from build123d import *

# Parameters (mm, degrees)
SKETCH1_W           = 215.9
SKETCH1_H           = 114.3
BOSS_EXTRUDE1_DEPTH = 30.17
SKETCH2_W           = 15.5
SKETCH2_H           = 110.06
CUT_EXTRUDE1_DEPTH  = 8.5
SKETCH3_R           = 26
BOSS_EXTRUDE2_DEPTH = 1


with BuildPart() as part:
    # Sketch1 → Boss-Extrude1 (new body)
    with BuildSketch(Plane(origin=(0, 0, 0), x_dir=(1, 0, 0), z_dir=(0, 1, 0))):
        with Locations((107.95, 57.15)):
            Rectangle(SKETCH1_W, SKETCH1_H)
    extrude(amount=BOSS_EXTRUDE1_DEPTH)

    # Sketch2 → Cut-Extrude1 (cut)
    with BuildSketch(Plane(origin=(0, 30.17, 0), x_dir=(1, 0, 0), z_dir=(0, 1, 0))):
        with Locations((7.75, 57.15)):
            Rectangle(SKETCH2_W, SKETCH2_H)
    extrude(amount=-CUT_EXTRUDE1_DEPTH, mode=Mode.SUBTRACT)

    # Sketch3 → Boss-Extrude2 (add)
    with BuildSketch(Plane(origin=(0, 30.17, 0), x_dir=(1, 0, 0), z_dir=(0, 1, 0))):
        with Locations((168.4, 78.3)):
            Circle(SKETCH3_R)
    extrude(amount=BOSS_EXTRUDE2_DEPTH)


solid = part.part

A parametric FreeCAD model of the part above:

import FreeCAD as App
import Part
import Sketcher


def add_polygon(sketch, points):
    """Adds a closed chain of lines whose ends are joined by coincident constraints."""
    first, n = sketch.GeometryCount, len(points)
    for a, b in zip(points, points[1:] + points[:1]):
        sketch.addGeometry(Part.LineSegment(App.Vector(*a, 0), App.Vector(*b, 0)), False)
    for i in range(n):
        sketch.addConstraint(Sketcher.Constraint("Coincident", first + i, 2, first + (i + 1) % n, 1))

doc = App.newDocument("Part")
params = doc.addObject("Spreadsheet::Sheet", "Params")
for row, (alias, value) in enumerate([
    ("sketch1_width", "215.9 mm"),
    ("sketch1_height", "114.3 mm"),
    ("pad1_length", "30.17 mm"),
    ("sketch2_width", "15.5 mm"),
    ("sketch2_height", "110.06 mm"),
    ("pocket1_length", "8.5 mm"),
    ("sketch3_diameter", "52 mm"),
    ("pad2_length", "1 mm"),
], start=1):
    params.set(f"A{row}", alias)
    params.set(f"B{row}", "=" + value)
    params.setAlias(f"B{row}", alias)

body = doc.addObject("PartDesign::Body", "Body")

sketch1 = body.newObject("Sketcher::SketchObject", "Sketch")
sketch1.AttachmentSupport = (doc.getObject("XZ_Plane"), [""])
sketch1.MapMode = "FlatFace"
add_polygon(sketch1, [(0, -114), (0, 0), (216, 0), (216, -114)])
sketch1.addConstraint(Sketcher.Constraint("Vertical", 0))
sketch1.addConstraint(Sketcher.Constraint("Horizontal", 1))
sketch1.addConstraint(Sketcher.Constraint("Vertical", 2))
sketch1.addConstraint(Sketcher.Constraint("Horizontal", 3))
sketch1.addConstraint(Sketcher.Constraint("Coincident", 0, 2, -1, 1))
sketch1.addConstraint(Sketcher.Constraint("DistanceX", 1, 1, 1, 2, 215.9))
sketch1.addConstraint(Sketcher.Constraint("DistanceY", 0, 1, 0, 2, 114.3))
sketch1.setExpression("Constraints[9]", "Params.sketch1_width")
sketch1.setExpression("Constraints[10]", "Params.sketch1_height")
pad1 = body.newObject("PartDesign::Pad", "Pad")
pad1.Profile = sketch1
pad1.setExpression("Length", "Params.pad1_length")
pad1.Reversed = True

sketch2 = body.newObject("Sketcher::SketchObject", "Sketch001")
sketch2.AttachmentSupport = (doc.getObject("XZ_Plane"), [""])
sketch2.MapMode = "FlatFace"
sketch2.AttachmentOffset = App.Placement(App.Vector(0, 0, -30.17), App.Rotation())
add_polygon(sketch2, [(0, -112), (0, -2), (16, -2), (16, -112)])
sketch2.addConstraint(Sketcher.Constraint("Vertical", 0))
sketch2.addConstraint(Sketcher.Constraint("Horizontal", 1))
sketch2.addConstraint(Sketcher.Constraint("Vertical", 2))
sketch2.addConstraint(Sketcher.Constraint("Horizontal", 3))
sketch2.addConstraint(Sketcher.Constraint("PointOnObject", 0, 2, -2))
sketch2.addConstraint(Sketcher.Constraint("DistanceX", 1, 1, 1, 2, 15.5))
sketch2.addConstraint(Sketcher.Constraint("DistanceY", 0, 1, 0, 2, 110.06))
sketch2.addConstraint(Sketcher.Constraint("DistanceY", 0, 2, -1, 1, 2.12))
sketch2.setExpression("Constraints[9]", "Params.sketch2_width")
sketch2.setExpression("Constraints[10]", "Params.sketch2_height")
pocket1 = body.newObject("PartDesign::Pocket", "Pocket")
pocket1.Profile = sketch2
pocket1.setExpression("Length", "Params.pocket1_length")
pocket1.Reversed = True

sketch3 = body.newObject("Sketcher::SketchObject", "Sketch002")
sketch3.AttachmentSupport = (doc.getObject("XZ_Plane"), [""])
sketch3.MapMode = "FlatFace"
sketch3.AttachmentOffset = App.Placement(App.Vector(0, 0, -30.17), App.Rotation())
sketch3.addGeometry(Part.Circle(App.Vector(168, -78, 0), App.Vector(0, 0, 1), 26), False)
sketch3.addConstraint(Sketcher.Constraint("Diameter", 0, 52.0))
sketch3.addConstraint(Sketcher.Constraint("DistanceX", -1, 1, 0, 3, 168.4))
sketch3.addConstraint(Sketcher.Constraint("DistanceY", 0, 3, -1, 1, 78.3))
sketch3.setExpression("Constraints[0]", "Params.sketch3_diameter")
pad2 = body.newObject("PartDesign::Pad", "Pad001")
pad2.Profile = sketch3
pad2.setExpression("Length", "Params.pad2_length")
pad2.Reversed = True

doc.recompute()
